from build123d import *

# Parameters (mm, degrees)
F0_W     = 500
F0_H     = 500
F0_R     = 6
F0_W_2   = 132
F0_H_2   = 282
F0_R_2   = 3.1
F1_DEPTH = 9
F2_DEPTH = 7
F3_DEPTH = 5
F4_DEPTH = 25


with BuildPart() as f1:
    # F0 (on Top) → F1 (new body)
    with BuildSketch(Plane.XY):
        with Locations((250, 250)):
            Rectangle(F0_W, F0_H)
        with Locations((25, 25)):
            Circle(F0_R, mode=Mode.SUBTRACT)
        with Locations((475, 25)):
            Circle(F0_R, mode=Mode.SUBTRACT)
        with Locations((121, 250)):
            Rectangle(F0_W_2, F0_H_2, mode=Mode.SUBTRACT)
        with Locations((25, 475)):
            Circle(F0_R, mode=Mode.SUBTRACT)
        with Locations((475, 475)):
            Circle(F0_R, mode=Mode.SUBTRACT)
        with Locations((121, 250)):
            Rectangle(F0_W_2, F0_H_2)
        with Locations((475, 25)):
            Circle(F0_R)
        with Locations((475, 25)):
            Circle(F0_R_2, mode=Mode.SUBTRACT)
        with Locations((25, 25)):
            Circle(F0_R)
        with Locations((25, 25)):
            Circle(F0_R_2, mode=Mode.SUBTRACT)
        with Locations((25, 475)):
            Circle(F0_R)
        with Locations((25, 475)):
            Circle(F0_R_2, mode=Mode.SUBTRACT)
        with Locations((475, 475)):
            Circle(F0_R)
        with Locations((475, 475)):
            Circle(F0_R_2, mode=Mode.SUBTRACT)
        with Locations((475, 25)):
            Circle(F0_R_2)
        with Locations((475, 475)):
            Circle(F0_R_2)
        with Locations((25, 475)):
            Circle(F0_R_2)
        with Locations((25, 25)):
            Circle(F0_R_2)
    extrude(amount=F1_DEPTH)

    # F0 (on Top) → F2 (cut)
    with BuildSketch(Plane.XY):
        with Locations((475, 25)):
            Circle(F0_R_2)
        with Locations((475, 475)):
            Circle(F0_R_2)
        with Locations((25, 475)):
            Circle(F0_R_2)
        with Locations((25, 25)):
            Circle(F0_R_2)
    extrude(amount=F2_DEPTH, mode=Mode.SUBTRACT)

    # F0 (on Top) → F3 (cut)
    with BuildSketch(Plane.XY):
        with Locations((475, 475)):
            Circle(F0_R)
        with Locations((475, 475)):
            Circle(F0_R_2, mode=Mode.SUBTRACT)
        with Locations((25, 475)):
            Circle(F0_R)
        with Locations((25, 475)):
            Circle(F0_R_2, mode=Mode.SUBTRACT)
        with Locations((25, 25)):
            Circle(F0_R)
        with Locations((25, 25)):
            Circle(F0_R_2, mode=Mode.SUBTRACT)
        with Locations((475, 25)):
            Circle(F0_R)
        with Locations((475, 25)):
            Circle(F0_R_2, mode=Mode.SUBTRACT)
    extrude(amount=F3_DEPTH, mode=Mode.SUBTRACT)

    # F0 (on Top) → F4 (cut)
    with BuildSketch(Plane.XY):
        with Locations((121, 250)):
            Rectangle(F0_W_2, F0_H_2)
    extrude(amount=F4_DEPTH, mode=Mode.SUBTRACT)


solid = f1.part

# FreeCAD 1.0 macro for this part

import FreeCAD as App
import Part
import Sketcher

doc = App.newDocument("Part")
body = doc.addObject("PartDesign::Body", "Body")

sketch1 = doc.addObject("Sketcher::SketchObject", "Sketch")
body.addObject(sketch1)
sketch1.AttachmentSupport = (doc.XY_Plane, [""])
sketch1.MapMode = "FlatFace"
sketch1.addGeometry([
    Part.LineSegment(App.Vector(0, 500, 0), App.Vector(0, 0, 0)),
    Part.LineSegment(App.Vector(0, 0, 0), App.Vector(500, 0, 0)),
    Part.LineSegment(App.Vector(500, 0, 0), App.Vector(500, 500, 0)),
    Part.LineSegment(App.Vector(500, 500, 0), App.Vector(0, 500, 0)),
], False)
sketch1.addConstraint([
    Sketcher.Constraint("Coincident", 0, 2, 1, 1),
    Sketcher.Constraint("Coincident", 1, 2, 2, 1),
    Sketcher.Constraint("Coincident", 2, 2, 3, 1),
    Sketcher.Constraint("Coincident", 3, 2, 0, 1),
    Sketcher.Constraint("Vertical", 0),
    Sketcher.Constraint("Horizontal", 1),
    Sketcher.Constraint("Vertical", 2),
    Sketcher.Constraint("Horizontal", 3),
    Sketcher.Constraint("Coincident", 0, 2, -1, 1),
    Sketcher.Constraint("Equal", 3, 0),
    Sketcher.Constraint("DistanceX", 1, 1, 1, 2, 500.0),
])
pad1 = doc.addObject("PartDesign::Pad", "Pad")
body.addObject(pad1)
pad1.Profile = sketch1
pad1.Length = 9

sketch2 = doc.addObject("Sketcher::SketchObject", "Sketch001")
body.addObject(sketch2)
sketch2.AttachmentSupport = (doc.XY_Plane, [""])
sketch2.MapMode = "FlatFace"
sketch2.addGeometry([
    Part.Circle(App.Vector(475, 25, 0), App.Vector(0, 0, 1), 3.1),
    Part.Circle(App.Vector(475, 475, 0), App.Vector(0, 0, 1), 3.1),
    Part.Circle(App.Vector(25, 475, 0), App.Vector(0, 0, 1), 3.1),
    Part.Circle(App.Vector(25, 25, 0), App.Vector(0, 0, 1), 3.1),
], False)
sketch2.addConstraint([
    Sketcher.Constraint("Equal", 0, 1),
    Sketcher.Constraint("Equal", 1, 2),
    Sketcher.Constraint("Equal", 2, 3),
    Sketcher.Constraint("Horizontal", 1, 3, 2, 3),
    Sketcher.Constraint("Horizontal", 0, 3, 3, 3),
    Sketcher.Constraint("Vertical", 0, 3, 1, 3),
    Sketcher.Constraint("Vertical", 2, 3, 3, 3),
    Sketcher.Constraint("Diameter", 0, 6.2),
    Sketcher.Constraint("DistanceX", -1, 1, 0, 3, 475.0),
    Sketcher.Constraint("DistanceY", -1, 1, 0, 3, 25.0),
    Sketcher.Constraint("DistanceY", -1, 1, 1, 3, 475.0),
    Sketcher.Constraint("DistanceX", -1, 1, 2, 3, 25.0),
])
pocket1 = doc.addObject("PartDesign::Pocket", "Pocket")
body.addObject(pocket1)
pocket1.Profile = sketch2
pocket1.Length = 7
pocket1.Reversed = True

sketch3 = doc.addObject("Sketcher::SketchObject", "Sketch002")
body.addObject(sketch3)
sketch3.AttachmentSupport = (doc.XY_Plane, [""])
sketch3.MapMode = "FlatFace"
sketch3.addGeometry([
    Part.Circle(App.Vector(475, 475, 0), App.Vector(0, 0, 1), 6),
    Part.Circle(App.Vector(475, 475, 0), App.Vector(0, 0, 1), 3.1),
    Part.Circle(App.Vector(25, 475, 0), App.Vector(0, 0, 1), 6),
    Part.Circle(App.Vector(25, 475, 0), App.Vector(0, 0, 1), 3.1),
    Part.Circle(App.Vector(25, 25, 0), App.Vector(0, 0, 1), 6),
    Part.Circle(App.Vector(25, 25, 0), App.Vector(0, 0, 1), 3.1),
    Part.Circle(App.Vector(475, 25, 0), App.Vector(0, 0, 1), 6),
    Part.Circle(App.Vector(475, 25, 0), App.Vector(0, 0, 1), 3.1),
], False)
sketch3.addConstraint([
    Sketcher.Constraint("Coincident", 1, 3, 0, 3),
    Sketcher.Constraint("Coincident", 3, 3, 2, 3),
    Sketcher.Constraint("Coincident", 5, 3, 4, 3),
    Sketcher.Constraint("Coincident", 7, 3, 6, 3),
    Sketcher.Constraint("Equal", 0, 2),
    Sketcher.Constraint("Equal", 1, 3),
    Sketcher.Constraint("Equal", 2, 4),
    Sketcher.Constraint("Equal", 3, 5),
    Sketcher.Constraint("Equal", 4, 6),
    Sketcher.Constraint("Equal", 5, 7),
    Sketcher.Constraint("Horizontal", 1, 3, 2, 3),
    Sketcher.Constraint("Horizontal", 5, 3, 6, 3),
    Sketcher.Constraint("Vertical", 3, 3, 4, 3),
    Sketcher.Constraint("Vertical", 1, 3, 6, 3),
    Sketcher.Constraint("Diameter", 0, 12.0),
    Sketcher.Constraint("Diameter", 1, 6.2),
    Sketcher.Constraint("DistanceX", -1, 1, 0, 3, 475.0),
    Sketcher.Constraint("DistanceY", -1, 1, 0, 3, 475.0),
    Sketcher.Constraint("DistanceX", -1, 1, 2, 3, 25.0),
    Sketcher.Constraint("DistanceY", -1, 1, 4, 3, 25.0),
])
pocket2 = doc.addObject("PartDesign::Pocket", "Pocket001")
body.addObject(pocket2)
pocket2.Profile = sketch3
pocket2.Length = 5
pocket2.Reversed = True

sketch4 = doc.addObject("Sketcher::SketchObject", "Sketch003")
body.addObject(sketch4)
sketch4.AttachmentSupport = (doc.XY_Plane, [""])
sketch4.MapMode = "FlatFace"
sketch4.addGeometry([
    Part.LineSegment(App.Vector(55, 391, 0), App.Vector(55, 109, 0)),
    Part.LineSegment(App.Vector(55, 109, 0), App.Vector(187, 109, 0)),
    Part.LineSegment(App.Vector(187, 109, 0), App.Vector(187, 391, 0)),
    Part.LineSegment(App.Vector(187, 391, 0), App.Vector(55, 391, 0)),
], False)
sketch4.addConstraint([
    Sketcher.Constraint("Coincident", 0, 2, 1, 1),
    Sketcher.Constraint("Coincident", 1, 2, 2, 1),
    Sketcher.Constraint("Coincident", 2, 2, 3, 1),
    Sketcher.Constraint("Coincident", 3, 2, 0, 1),
    Sketcher.Constraint("Vertical", 0),
    Sketcher.Constraint("Horizontal", 1),
    Sketcher.Constraint("Vertical", 2),
    Sketcher.Constraint("Horizontal", 3),
    Sketcher.Constraint("DistanceX", 1, 1, 1, 2, 132.0),
    Sketcher.Constraint("DistanceY", 0, 2, 0, 1, 282.0),
    Sketcher.Constraint("DistanceX", -1, 1, 0, 2, 55.0),
    Sketcher.Constraint("DistanceY", -1, 1, 0, 2, 109.0),
])
pocket3 = doc.addObject("PartDesign::Pocket", "Pocket002")
body.addObject(pocket3)
pocket3.Profile = sketch4
pocket3.Length = 25
pocket3.Reversed = True

doc.recompute()
